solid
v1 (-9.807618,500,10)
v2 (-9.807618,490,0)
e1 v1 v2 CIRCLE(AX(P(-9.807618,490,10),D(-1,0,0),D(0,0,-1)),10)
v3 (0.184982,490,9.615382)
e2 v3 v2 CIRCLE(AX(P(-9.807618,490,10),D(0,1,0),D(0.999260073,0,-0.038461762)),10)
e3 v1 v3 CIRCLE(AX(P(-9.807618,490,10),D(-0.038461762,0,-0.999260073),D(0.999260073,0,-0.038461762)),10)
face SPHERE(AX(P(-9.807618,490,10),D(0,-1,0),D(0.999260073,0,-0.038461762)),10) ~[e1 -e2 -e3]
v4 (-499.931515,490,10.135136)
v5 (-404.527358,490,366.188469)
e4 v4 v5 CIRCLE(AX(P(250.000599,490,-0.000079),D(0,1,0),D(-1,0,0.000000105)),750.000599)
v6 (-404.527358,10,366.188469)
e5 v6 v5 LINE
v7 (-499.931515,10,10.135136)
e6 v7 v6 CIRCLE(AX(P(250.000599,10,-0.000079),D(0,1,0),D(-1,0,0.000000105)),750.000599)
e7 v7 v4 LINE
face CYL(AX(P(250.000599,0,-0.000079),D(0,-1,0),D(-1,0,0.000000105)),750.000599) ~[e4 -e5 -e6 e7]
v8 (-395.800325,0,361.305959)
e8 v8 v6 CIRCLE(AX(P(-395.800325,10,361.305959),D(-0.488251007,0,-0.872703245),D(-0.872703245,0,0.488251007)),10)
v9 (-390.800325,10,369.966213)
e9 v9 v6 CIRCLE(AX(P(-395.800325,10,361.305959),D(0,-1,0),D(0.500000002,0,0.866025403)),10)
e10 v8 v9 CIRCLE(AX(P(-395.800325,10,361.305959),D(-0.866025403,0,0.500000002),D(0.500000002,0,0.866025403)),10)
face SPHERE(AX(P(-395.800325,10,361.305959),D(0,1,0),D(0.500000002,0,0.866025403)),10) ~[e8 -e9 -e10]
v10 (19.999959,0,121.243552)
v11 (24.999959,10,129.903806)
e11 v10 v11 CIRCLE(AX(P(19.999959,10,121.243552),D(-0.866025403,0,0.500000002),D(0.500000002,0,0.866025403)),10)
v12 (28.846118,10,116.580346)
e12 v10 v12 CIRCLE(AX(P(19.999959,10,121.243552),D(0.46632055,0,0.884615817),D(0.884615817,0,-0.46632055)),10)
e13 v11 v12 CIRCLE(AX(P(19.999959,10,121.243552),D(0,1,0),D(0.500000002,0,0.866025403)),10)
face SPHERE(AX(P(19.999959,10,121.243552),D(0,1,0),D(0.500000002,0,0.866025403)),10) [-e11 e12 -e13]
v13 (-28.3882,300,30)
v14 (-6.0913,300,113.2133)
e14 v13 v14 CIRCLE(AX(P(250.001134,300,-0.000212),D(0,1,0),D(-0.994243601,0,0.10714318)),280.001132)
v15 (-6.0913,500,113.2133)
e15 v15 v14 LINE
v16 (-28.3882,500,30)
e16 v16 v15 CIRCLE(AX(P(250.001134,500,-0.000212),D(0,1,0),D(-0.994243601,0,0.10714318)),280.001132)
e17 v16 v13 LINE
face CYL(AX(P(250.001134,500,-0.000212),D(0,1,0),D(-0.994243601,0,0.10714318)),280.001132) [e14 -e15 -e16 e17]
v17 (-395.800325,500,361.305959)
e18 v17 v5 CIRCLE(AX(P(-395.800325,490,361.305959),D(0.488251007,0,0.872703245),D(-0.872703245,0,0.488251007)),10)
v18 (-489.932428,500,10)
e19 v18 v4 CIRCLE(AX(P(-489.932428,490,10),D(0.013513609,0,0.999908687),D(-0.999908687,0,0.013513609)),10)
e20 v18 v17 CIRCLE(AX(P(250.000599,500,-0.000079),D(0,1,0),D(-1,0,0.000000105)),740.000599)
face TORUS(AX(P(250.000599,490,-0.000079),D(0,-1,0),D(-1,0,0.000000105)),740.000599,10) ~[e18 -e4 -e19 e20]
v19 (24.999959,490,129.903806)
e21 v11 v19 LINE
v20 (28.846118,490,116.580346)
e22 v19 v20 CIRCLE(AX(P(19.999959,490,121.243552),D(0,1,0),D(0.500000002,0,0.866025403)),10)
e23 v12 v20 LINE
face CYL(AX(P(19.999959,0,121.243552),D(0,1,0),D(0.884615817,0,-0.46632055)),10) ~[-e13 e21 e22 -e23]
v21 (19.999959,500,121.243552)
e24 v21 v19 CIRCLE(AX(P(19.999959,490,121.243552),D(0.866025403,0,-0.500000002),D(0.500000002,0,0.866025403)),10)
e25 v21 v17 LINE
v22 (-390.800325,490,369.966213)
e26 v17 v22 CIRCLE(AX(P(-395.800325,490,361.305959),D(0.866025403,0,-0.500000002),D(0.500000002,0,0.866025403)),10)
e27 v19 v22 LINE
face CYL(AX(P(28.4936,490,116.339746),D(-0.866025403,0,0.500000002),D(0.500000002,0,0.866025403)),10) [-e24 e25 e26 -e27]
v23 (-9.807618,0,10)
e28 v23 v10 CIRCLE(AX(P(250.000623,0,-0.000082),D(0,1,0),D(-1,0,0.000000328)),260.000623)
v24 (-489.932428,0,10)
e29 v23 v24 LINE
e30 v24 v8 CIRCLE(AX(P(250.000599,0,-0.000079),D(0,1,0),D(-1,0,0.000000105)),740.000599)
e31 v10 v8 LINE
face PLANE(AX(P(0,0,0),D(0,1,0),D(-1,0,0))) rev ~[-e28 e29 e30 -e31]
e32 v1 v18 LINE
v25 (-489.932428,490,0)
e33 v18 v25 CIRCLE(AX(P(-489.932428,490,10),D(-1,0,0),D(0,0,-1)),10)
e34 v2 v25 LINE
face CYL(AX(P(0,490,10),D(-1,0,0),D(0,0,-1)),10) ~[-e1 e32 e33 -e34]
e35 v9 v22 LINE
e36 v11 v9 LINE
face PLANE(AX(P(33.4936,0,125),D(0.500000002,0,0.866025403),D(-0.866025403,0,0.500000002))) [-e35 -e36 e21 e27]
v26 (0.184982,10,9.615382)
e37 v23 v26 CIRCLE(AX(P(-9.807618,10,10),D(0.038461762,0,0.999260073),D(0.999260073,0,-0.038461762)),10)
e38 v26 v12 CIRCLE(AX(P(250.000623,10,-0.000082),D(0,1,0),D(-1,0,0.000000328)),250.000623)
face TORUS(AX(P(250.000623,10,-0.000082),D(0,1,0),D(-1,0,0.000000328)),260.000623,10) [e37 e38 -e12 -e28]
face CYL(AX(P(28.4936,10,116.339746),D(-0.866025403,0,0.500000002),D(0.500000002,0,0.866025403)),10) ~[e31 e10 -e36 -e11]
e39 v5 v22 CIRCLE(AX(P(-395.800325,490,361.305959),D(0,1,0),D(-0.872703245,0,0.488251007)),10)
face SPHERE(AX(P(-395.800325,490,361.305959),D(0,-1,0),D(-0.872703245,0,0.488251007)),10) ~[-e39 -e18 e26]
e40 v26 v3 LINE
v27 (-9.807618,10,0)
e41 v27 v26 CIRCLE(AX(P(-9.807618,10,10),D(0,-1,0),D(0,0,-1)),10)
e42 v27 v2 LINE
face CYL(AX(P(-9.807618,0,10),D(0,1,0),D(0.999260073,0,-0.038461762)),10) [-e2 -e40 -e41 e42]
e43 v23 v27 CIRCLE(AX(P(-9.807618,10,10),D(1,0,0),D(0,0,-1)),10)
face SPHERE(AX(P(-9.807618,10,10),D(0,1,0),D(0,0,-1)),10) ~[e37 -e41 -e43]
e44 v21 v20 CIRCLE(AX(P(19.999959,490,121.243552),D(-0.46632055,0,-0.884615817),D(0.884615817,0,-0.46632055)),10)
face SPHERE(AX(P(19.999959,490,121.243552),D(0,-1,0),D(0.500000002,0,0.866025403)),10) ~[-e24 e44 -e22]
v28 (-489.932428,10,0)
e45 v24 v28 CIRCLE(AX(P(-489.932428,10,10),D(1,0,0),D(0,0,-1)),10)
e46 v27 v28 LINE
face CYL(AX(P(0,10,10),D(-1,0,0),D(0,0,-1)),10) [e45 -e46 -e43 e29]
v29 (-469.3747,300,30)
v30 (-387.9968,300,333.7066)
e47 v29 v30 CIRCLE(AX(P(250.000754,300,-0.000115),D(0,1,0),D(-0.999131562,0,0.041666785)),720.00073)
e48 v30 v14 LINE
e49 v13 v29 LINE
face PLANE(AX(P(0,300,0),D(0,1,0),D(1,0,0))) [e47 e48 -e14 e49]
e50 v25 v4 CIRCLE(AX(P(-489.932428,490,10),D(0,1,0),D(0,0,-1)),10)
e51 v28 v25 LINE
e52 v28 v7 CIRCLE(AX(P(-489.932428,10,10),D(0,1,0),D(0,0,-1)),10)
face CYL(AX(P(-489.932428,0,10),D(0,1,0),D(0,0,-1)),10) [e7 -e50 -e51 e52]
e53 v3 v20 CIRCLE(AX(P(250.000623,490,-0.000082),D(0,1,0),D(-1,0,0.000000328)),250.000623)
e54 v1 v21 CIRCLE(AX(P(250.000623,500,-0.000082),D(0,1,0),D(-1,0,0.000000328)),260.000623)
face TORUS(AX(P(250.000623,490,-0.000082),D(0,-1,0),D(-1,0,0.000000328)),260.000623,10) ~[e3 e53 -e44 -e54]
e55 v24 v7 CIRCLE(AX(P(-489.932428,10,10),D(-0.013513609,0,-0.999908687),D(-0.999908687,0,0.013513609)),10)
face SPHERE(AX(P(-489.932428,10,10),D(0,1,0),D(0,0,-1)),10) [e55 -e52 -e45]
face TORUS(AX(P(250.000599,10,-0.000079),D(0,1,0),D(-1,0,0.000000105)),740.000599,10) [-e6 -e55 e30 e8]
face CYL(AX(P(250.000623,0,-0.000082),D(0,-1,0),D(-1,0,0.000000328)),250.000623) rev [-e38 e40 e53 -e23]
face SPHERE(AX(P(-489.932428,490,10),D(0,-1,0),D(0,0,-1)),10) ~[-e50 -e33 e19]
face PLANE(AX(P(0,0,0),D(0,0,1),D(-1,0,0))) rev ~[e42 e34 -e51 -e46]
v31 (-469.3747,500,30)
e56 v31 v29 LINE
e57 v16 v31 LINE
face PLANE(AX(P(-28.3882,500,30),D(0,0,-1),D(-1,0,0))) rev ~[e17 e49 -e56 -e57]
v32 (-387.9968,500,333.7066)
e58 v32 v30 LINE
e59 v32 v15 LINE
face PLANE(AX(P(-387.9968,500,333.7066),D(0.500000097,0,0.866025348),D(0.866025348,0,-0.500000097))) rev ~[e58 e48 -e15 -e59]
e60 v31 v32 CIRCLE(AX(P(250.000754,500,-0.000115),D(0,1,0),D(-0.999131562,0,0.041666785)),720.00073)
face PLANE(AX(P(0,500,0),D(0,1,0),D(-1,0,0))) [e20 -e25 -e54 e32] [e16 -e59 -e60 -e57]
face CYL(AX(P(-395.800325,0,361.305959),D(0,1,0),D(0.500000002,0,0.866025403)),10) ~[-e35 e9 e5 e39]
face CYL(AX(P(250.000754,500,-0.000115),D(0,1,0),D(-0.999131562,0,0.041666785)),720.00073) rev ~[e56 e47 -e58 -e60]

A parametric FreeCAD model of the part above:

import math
import FreeCAD as App
import Part
import Sketcher
from FreeCAD import Vector
Q = App.Units.Quantity


def edges_at(feature, points):
    """Names of the edges that pass closest to the given points."""
    edges = feature.Shape.Edges
    near = lambda p: min(range(len(edges)), key=lambda i: edges[i].distToShape(Part.Vertex(*p))[0])
    return sorted({f"Edge{near(p) + 1}" for p in points})

doc = App.newDocument("Part")
body = doc.addObject("PartDesign::Body", "Body")

# Sketch on XZ plane
sketch1 = body.newObject("Sketcher::SketchObject", "Sketch")
sketch1.AttachmentSupport = (doc.getObject("XZ_Plane"), [""])
sketch1.MapMode = "FlatFace"
sketch1.addGeometry(Part.ArcOfCircle(Part.Circle(Vector(250, 0, 0), Vector(0, 0, 1), 250), math.radians(150.000006), math.radians(180)), False)
sketch1.addGeometry(Part.LineSegment(Vector(0, 0, 0), Vector(-500, 0, 0)), False)
sketch1.addGeometry(Part.ArcOfCircle(Part.Circle(Vector(250, 0, 0), Vector(0, 0, 1), 750), math.radians(150.000002), math.radians(180)), False)
sketch1.addGeometry(Part.LineSegment(Vector(-399.5191, 375, 0), Vector(33.4936, 125, 0)), False)
sketch1.addConstraint(Sketcher.Constraint("Coincident", 0, 2, 1, 1))
sketch1.addConstraint(Sketcher.Constraint("Coincident", 1, 2, 2, 2))
sketch1.addConstraint(Sketcher.Constraint("Coincident", 2, 1, 3, 1))
sketch1.addConstraint(Sketcher.Constraint("Coincident", 3, 2, 0, 1))
sketch1.addConstraint(Sketcher.Constraint("Horizontal", 1))
sketch1.addConstraint(Sketcher.Constraint("Coincident", 0, 2, -1, 1))
sketch1.addConstraint(Sketcher.Constraint("Coincident", 2, 3, 0, 3))
sketch1.addConstraint(Sketcher.Constraint("PointOnObject", 0, 3, -1))
sketch1.addConstraint(Sketcher.Constraint("Radius", 0, 250.0))
sketch1.addConstraint(Sketcher.Constraint("DistanceX", 1, 2, 1, 1, 500.0))
sketch1.addConstraint(Sketcher.Constraint("Angle", 3, Q("-30 deg")))
sketch1.addConstraint(Sketcher.Constraint("DistanceY", -1, 1, 3, 2, 125.0))
pad1 = body.newObject("PartDesign::Pad", "Pad")
pad1.Profile = sketch1
pad1.Length = 500
pad1.Reversed = True

# Sketch on XZ plane
sketch2 = body.newObject("Sketcher::SketchObject", "Sketch001")
sketch2.AttachmentSupport = (doc.getObject("XZ_Plane"), [""])
sketch2.MapMode = "FlatFace"
sketch2.AttachmentOffset = App.Placement(Vector(0, 0, -500), App.Rotation())
sketch2.addGeometry(Part.ArcOfCircle(Part.Circle(Vector(250, 0, 0), Vector(0, 0, 1), 719.999972), math.radians(152.388016), math.radians(177.611984)), False)
sketch2.addGeometry(Part.LineSegment(Vector(-387.9968, 333.7066, 0), Vector(-6.0913, 113.2133, 0)), False)
sketch2.addGeometry(Part.ArcOfCircle(Part.Circle(Vector(250.001134, -0.000212, 0), Vector(0, 0, 1), 280.001132), math.radians(156.150705), math.radians(173.849342)), False)
sketch2.addGeometry(Part.LineSegment(Vector(-28.3882, 30, 0), Vector(-469.3747, 30, 0)), False)
sketch2.addConstraint(Sketcher.Constraint("Coincident", 0, 1, 1, 1))
sketch2.addConstraint(Sketcher.Constraint("Coincident", 1, 2, 2, 1))
sketch2.addConstraint(Sketcher.Constraint("Coincident", 2, 2, 3, 1))
sketch2.addConstraint(Sketcher.Constraint("Coincident", 3, 2, 0, 2))
sketch2.addConstraint(Sketcher.Constraint("Horizontal", 3))
sketch2.addConstraint(Sketcher.Constraint("PointOnObject", 0, 3, -1))
sketch2.addConstraint(Sketcher.Constraint("Angle", 1, Q("-30 deg")))
sketch2.addConstraint(Sketcher.Constraint("DistanceY", -1, 1, 2, 2, 30.0))
sketch2.addConstraint(Sketcher.Constraint("Radius", 0, 720.0))
sketch2.addConstraint(Sketcher.Constraint("DistanceX", -1, 1, 0, 3, 250.0))
sketch2.addConstraint(Sketcher.Constraint("Radius", 2, 280.0011))
sketch2.addConstraint(Sketcher.Constraint("DistanceY", 2, 3, 2, 2, 30.0002))
sketch2.addConstraint(Sketcher.Constraint("DistanceX", 3, 2, 3, 1, 440.9865))
sketch2.addConstraint(Sketcher.Constraint("DistanceX", 2, 2, 1, 2, 22.297))
pocket1 = body.newObject("PartDesign::Pocket", "Pocket")
pocket1.Profile = sketch2
pocket1.Length = 200
pocket1.Reversed = True
doc.recompute()

fillet = body.newObject("PartDesign::Fillet", "Fillet")
fillet.Base = (pocket1, edges_at(pocket1, [
    (-183.013, 500, 250),
    (8.518, 0, 64.705),
    (0, 250, 0),
    (8.518, 500, 64.705),
    (33.494, 250, 125),
    (-474.444, 0, 194.114),
    (-399.519, 250, 375),
    (-474.444, 500, 194.114),
    (-500, 250, 0),
    (-250, 0, 0),
    (-250, 500, 0),
    (-183.013, 0, 250),
]))
fillet.Radius = 10

doc.recompute()
